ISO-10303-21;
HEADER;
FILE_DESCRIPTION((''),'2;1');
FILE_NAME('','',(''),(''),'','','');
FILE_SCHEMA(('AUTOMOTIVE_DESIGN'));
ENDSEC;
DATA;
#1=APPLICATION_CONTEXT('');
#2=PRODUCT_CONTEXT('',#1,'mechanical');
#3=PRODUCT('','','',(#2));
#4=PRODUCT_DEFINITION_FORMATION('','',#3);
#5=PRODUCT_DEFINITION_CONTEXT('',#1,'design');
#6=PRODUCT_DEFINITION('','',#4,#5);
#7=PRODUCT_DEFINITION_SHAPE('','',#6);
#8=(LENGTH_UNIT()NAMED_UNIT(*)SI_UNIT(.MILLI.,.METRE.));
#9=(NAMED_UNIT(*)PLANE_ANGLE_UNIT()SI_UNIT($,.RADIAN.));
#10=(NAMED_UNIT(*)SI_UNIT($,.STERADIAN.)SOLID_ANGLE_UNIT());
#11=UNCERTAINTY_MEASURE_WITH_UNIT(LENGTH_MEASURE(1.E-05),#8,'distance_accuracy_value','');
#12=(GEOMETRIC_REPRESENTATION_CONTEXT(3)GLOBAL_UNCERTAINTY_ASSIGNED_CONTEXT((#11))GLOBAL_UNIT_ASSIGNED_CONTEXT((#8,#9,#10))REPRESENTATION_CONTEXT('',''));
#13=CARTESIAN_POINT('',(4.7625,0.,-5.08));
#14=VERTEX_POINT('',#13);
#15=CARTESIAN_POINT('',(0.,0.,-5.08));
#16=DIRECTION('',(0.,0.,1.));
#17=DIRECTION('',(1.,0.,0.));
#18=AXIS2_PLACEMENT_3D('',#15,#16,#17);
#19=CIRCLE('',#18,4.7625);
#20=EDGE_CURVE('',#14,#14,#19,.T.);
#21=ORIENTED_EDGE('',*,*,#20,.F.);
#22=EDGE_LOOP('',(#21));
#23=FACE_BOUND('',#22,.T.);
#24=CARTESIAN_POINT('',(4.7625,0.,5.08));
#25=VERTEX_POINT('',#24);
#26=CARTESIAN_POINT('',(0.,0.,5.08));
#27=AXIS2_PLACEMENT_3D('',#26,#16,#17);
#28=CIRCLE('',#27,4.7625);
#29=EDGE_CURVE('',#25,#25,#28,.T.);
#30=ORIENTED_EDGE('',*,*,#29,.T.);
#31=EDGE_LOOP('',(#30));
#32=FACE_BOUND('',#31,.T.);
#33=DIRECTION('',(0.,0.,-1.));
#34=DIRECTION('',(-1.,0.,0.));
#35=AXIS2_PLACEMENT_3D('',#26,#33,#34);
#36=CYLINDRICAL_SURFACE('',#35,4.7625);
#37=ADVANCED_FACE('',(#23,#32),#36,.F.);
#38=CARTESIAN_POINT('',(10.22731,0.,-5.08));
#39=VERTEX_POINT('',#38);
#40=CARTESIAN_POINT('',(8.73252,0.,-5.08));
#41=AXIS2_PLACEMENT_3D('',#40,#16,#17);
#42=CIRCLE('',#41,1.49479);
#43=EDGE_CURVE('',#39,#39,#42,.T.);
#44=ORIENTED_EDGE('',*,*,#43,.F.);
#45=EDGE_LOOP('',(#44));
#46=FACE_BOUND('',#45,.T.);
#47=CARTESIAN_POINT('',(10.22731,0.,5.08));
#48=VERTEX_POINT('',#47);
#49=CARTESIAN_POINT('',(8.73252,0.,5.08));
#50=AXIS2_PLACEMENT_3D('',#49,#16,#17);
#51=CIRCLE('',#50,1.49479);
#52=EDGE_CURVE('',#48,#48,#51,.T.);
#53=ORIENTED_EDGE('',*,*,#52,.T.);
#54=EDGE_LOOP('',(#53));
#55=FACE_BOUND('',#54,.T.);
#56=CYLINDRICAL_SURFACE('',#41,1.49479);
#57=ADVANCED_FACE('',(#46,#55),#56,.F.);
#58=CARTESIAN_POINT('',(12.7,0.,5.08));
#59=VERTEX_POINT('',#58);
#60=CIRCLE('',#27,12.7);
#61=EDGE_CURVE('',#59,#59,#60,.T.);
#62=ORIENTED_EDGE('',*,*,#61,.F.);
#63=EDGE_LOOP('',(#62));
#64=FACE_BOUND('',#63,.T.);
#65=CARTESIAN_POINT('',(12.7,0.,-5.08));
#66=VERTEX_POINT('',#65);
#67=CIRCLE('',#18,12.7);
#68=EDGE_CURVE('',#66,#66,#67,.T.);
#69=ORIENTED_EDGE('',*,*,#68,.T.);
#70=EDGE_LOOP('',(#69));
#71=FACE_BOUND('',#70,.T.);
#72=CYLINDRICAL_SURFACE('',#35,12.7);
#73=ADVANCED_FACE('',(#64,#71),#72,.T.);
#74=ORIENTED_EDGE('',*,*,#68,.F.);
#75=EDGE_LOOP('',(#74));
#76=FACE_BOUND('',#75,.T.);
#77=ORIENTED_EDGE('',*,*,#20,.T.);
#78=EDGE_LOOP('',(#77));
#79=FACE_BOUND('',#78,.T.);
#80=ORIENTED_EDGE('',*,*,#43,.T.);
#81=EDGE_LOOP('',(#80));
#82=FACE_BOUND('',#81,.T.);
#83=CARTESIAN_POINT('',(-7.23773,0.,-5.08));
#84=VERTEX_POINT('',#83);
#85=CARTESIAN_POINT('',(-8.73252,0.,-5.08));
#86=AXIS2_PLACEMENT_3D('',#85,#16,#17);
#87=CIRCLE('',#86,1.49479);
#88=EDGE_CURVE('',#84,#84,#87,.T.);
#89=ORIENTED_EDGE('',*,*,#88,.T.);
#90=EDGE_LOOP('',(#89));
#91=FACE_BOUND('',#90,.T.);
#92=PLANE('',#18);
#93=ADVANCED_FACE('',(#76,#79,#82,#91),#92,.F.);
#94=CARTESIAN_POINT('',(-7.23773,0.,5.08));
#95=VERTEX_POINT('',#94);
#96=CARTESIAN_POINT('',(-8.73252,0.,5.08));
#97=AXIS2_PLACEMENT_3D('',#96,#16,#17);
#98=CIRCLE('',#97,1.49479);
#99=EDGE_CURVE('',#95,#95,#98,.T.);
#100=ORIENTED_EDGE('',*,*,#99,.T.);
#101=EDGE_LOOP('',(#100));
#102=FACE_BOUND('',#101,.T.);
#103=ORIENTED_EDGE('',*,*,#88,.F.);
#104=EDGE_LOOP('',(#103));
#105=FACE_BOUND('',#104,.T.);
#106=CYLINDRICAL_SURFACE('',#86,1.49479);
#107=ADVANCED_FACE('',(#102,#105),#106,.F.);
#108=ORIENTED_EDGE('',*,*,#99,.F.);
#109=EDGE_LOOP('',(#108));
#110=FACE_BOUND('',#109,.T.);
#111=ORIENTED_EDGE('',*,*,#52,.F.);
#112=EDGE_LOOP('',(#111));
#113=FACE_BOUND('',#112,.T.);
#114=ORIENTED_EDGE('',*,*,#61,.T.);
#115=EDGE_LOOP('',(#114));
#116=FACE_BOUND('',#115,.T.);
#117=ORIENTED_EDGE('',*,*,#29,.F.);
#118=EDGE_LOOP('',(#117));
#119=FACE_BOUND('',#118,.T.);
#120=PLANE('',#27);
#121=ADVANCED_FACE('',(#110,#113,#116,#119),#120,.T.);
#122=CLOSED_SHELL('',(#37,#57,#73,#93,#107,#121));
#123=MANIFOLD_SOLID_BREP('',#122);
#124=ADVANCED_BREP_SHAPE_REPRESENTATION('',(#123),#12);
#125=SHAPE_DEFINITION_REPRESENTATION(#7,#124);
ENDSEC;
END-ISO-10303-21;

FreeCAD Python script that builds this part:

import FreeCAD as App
import Part
import Sketcher
from FreeCAD import Vector
Q = App.Units.Quantity

doc = App.newDocument("Part")
body = doc.addObject("PartDesign::Body", "Body")

# Sketch on XY plane
sketch1 = doc.addObject("Sketcher::SketchObject", "Sketch")
body.addObject(sketch1)
sketch1.AttachmentSupport = (doc.XY_Plane, [""])
sketch1.MapMode = "FlatFace"
sketch1.addGeometry(Part.Circle(Vector(0, 0, 0), Vector(0, 0, 1), 12.7), False)
sketch1.addGeometry(Part.Circle(Vector(0, 0, 0), Vector(0, 0, 1), 4.8), False)
sketch1.addConstraint(Sketcher.Constraint("Coincident", 0, 3, -1, 1))
sketch1.addConstraint(Sketcher.Constraint("Coincident", 1, 3, -1, 1))
sketch1.addConstraint(Sketcher.Constraint("Diameter", 0, Q("1 in")))
sketch1.addConstraint(Sketcher.Constraint("Diameter", 1, Q("0.375 in")))
pad1 = doc.addObject("PartDesign::Pad", "Pad")
body.addObject(pad1)
pad1.Profile = sketch1
pad1.Length = Q("0.4 in")
pad1.Midplane = True

# Sketch on XY plane
sketch2 = doc.addObject("Sketcher::SketchObject", "Sketch001")
body.addObject(sketch2)
sketch2.AttachmentSupport = (doc.XY_Plane, [""])
sketch2.MapMode = "FlatFace"
sketch2.AttachmentOffset = App.Placement(Vector(0, 0, 0.2 * 25.4), App.Rotation())
sketch2.addGeometry(Part.Circle(Vector(8.7, 0, 0), Vector(0, 0, 1), 1.5), False)
sketch2.addGeometry(Part.Circle(Vector(-8.7, 0, 0), Vector(0, 0, 1), 1.5), False)
sketch2.addConstraint(Sketcher.Constraint("Equal", 0, 1))
sketch2.addConstraint(Sketcher.Constraint("Symmetric", 0, 3, 1, 3, -1, 1))
sketch2.addConstraint(Sketcher.Constraint("PointOnObject", 0, 3, -1))
sketch2.addConstraint(Sketcher.Constraint("Diameter", 0, Q("0.1177 in")))
sketch2.addConstraint(Sketcher.Constraint("DistanceX", -1, 1, 0, 3, Q("0.3438 in")))
pocket1 = doc.addObject("PartDesign::Pocket", "Pocket")
body.addObject(pocket1)
pocket1.Profile = sketch2
pocket1.Length = Q("0.4 in")

doc.recompute()
